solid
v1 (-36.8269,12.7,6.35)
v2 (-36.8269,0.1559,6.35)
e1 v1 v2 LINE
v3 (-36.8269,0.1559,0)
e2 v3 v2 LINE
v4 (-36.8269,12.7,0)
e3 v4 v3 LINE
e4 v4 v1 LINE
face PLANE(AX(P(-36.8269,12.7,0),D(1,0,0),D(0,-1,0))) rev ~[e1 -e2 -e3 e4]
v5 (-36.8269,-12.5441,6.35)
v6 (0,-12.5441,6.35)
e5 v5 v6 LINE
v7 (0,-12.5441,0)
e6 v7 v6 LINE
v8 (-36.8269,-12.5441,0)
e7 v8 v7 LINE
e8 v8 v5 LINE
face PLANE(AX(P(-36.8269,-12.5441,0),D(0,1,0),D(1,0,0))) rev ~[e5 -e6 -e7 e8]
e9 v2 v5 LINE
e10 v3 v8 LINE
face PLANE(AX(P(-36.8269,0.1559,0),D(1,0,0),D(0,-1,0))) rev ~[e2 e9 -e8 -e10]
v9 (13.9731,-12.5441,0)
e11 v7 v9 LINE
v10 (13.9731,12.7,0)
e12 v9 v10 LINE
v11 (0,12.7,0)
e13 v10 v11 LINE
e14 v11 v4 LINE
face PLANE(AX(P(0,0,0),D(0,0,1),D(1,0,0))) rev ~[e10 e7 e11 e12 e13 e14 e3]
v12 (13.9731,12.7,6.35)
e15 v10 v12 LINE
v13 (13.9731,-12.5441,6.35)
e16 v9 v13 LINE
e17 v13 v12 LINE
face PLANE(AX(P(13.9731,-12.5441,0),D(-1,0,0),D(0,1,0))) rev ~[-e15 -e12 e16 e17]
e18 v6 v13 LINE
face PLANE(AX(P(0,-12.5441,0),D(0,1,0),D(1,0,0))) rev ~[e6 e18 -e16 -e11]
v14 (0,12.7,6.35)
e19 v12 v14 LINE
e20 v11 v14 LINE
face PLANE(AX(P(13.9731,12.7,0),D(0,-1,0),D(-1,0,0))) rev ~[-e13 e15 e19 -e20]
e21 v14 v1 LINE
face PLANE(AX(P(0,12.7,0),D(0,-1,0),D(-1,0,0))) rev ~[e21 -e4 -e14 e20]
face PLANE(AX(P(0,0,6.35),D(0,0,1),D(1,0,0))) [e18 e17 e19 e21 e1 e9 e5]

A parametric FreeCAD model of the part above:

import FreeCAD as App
import Part
import Sketcher
from FreeCAD import Vector
Q = App.Units.Quantity

doc = App.newDocument("Part")
body = doc.addObject("PartDesign::Body", "Body")

# Sketch on XY plane
sketch1 = body.newObject("Sketcher::SketchObject", "Sketch")
sketch1.AttachmentSupport = (doc.getObject("XY_Plane"), [""])
sketch1.MapMode = "FlatFace"
sketch1.addGeometry([
    Part.LineSegment(Vector(-37, 13, 0), Vector(-37, -13, 0)),
    Part.LineSegment(Vector(-37, -13, 0), Vector(14, -13, 0)),
    Part.LineSegment(Vector(14, -13, 0), Vector(14, 13, 0)),
    Part.LineSegment(Vector(14, 13, 0), Vector(-37, 13, 0)),
], False)
sketch1.addConstraint([
    Sketcher.Constraint("Coincident", 0, 2, 1, 1),
    Sketcher.Constraint("Coincident", 1, 2, 2, 1),
    Sketcher.Constraint("Coincident", 2, 2, 3, 1),
    Sketcher.Constraint("Coincident", 3, 2, 0, 1),
    Sketcher.Constraint("Vertical", 0),
    Sketcher.Constraint("Horizontal", 1),
    Sketcher.Constraint("Vertical", 2),
    Sketcher.Constraint("Horizontal", 3),
    Sketcher.Constraint("DistanceX", 1, 1, 1, 2, Q("2 in")),
    Sketcher.Constraint("DistanceY", -1, 1, 2, 2, Q("0.5 in")),
    Sketcher.Constraint("DistanceY", 0, 2, 0, 1, 25.244),
    Sketcher.Constraint("DistanceX", 0, 2, -1, 1, 36.827),
])
pad1 = body.newObject("PartDesign::Pad", "Pad")
pad1.Profile = sketch1
pad1.Length = Q("0.25 in")

doc.recompute()
